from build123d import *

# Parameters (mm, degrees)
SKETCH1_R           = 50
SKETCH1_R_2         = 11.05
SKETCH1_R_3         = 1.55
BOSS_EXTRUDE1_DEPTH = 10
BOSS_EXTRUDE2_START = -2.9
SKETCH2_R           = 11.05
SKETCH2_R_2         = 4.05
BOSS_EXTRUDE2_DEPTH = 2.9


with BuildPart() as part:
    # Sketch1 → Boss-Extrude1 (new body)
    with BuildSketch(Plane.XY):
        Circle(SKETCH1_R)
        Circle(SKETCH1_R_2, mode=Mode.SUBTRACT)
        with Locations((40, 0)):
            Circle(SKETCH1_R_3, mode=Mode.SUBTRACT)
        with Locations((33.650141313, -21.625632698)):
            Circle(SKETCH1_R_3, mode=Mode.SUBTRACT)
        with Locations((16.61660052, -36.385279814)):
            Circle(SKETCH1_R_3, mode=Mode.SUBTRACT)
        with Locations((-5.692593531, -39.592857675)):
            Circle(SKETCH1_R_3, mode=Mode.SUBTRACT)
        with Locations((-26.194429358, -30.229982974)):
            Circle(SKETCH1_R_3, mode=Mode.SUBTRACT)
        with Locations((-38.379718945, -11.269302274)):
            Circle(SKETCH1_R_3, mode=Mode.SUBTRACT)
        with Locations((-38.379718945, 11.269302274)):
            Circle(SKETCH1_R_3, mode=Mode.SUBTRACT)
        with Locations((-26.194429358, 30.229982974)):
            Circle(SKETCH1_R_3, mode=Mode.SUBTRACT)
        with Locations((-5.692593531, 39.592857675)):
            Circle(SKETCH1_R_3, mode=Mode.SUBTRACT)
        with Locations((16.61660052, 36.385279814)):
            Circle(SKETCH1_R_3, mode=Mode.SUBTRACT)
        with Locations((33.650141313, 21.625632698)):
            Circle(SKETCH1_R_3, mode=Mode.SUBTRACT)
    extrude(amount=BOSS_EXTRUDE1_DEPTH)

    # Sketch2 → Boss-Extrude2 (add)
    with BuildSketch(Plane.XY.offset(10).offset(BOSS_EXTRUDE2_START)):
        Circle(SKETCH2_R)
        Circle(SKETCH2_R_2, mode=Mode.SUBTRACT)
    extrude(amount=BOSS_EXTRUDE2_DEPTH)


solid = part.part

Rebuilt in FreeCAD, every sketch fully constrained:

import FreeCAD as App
import Part
import Sketcher

V = App.Vector

doc = App.newDocument("Part")
params = doc.addObject("Spreadsheet::Sheet", "Params")
for row, (alias, value) in enumerate([
    ("sketch1_diameter", "100 mm"),
    ("sketch1_diameter2", "3.1 mm"),
    ("sketch1_diameter3", "22.1 mm"),
    ("pad1_length", "10 mm"),
    ("sketch2_diameter", "22.1 mm"),
    ("sketch2_diameter2", "8.1 mm"),
    ("pad2_length", "2.9 mm"),
], start=1):
    params.set(f"A{row}", alias)
    params.set(f"B{row}", "=" + value)
    params.setAlias(f"B{row}", alias)

body = doc.addObject("PartDesign::Body", "Body")

sketch1 = body.newObject("Sketcher::SketchObject", "Sketch")
sketch1.AttachmentSupport = (doc.getObject("XY_Plane"), [""])
sketch1.MapMode = "FlatFace"
sketch1.addGeometry(Part.Circle(V(0, 0, 0), V(0, 0, 1), 50), False)
sketch1.addGeometry(Part.Circle(V(-26.194429, -30.229983, 0), V(0, 0, 1), 1.55), False)
sketch1.addGeometry(Part.Circle(V(-5.692594, -39.592858, 0), V(0, 0, 1), 1.55), False)
sketch1.addGeometry(Part.Circle(V(-38.379719, -11.269302, 0), V(0, 0, 1), 1.55), False)
sketch1.addGeometry(Part.Circle(V(0, 0, 0), V(0, 0, 1), 11.05), False)
sketch1.addGeometry(Part.Circle(V(16.616601, -36.38528, 0), V(0, 0, 1), 1.55), False)
sketch1.addGeometry(Part.Circle(V(33.650141, -21.625633, 0), V(0, 0, 1), 1.55), False)
sketch1.addGeometry(Part.Circle(V(40, 0, 0), V(0, 0, 1), 1.55), False)
sketch1.addGeometry(Part.Circle(V(-38.379719, 11.269302, 0), V(0, 0, 1), 1.55), False)
sketch1.addGeometry(Part.Circle(V(-26.194429, 30.229983, 0), V(0, 0, 1), 1.55), False)
sketch1.addGeometry(Part.Circle(V(-5.692594, 39.592858, 0), V(0, 0, 1), 1.55), False)
sketch1.addGeometry(Part.Circle(V(16.616601, 36.38528, 0), V(0, 0, 1), 1.55), False)
sketch1.addGeometry(Part.Circle(V(33.650141, 21.625633, 0), V(0, 0, 1), 1.55), False)
sketch1.addConstraint(Sketcher.Constraint("Coincident", 0, 3, -1, 1))
sketch1.addConstraint(Sketcher.Constraint("Coincident", 4, 3, -1, 1))
sketch1.addConstraint(Sketcher.Constraint("Equal", 1, 2))
sketch1.addConstraint(Sketcher.Constraint("Equal", 2, 3))
sketch1.addConstraint(Sketcher.Constraint("Equal", 3, 5))
sketch1.addConstraint(Sketcher.Constraint("Equal", 5, 6))
sketch1.addConstraint(Sketcher.Constraint("Equal", 6, 7))
sketch1.addConstraint(Sketcher.Constraint("Equal", 7, 8))
sketch1.addConstraint(Sketcher.Constraint("Equal", 8, 9))
sketch1.addConstraint(Sketcher.Constraint("Equal", 9, 10))
sketch1.addConstraint(Sketcher.Constraint("Equal", 10, 11))
sketch1.addConstraint(Sketcher.Constraint("Equal", 11, 12))
sketch1.addConstraint(Sketcher.Constraint("Symmetric", 3, 3, 8, 3, -1))
sketch1.addConstraint(Sketcher.Constraint("Symmetric", 1, 3, 9, 3, -1))
sketch1.addConstraint(Sketcher.Constraint("Symmetric", 2, 3, 10, 3, -1))
sketch1.addConstraint(Sketcher.Constraint("Symmetric", 5, 3, 11, 3, -1))
sketch1.addConstraint(Sketcher.Constraint("Symmetric", 6, 3, 12, 3, -1))
sketch1.addConstraint(Sketcher.Constraint("PointOnObject", 7, 3, -1))
sketch1.addConstraint(Sketcher.Constraint("Diameter", 0, 100.0))
sketch1.addConstraint(Sketcher.Constraint("Diameter", 1, 3.1))
sketch1.addConstraint(Sketcher.Constraint("Diameter", 4, 22.1))
sketch1.addConstraint(Sketcher.Constraint("DistanceX", -1, 1, 7, 3, 40.0))
sketch1.addConstraint(Sketcher.Constraint("DistanceX", -1, 1, 5, 3, 16.616601))
sketch1.addConstraint(Sketcher.Constraint("DistanceX", 1, 3, -1, 1, 26.194429))
sketch1.addConstraint(Sketcher.Constraint("DistanceX", 3, 3, -1, 1, 38.379719))
sketch1.addConstraint(Sketcher.Constraint("DistanceY", 5, 3, -1, 1, 36.38528))
sketch1.addConstraint(Sketcher.Constraint("DistanceX", -1, 1, 6, 3, 33.650141))
sketch1.addConstraint(Sketcher.Constraint("DistanceY", 1, 3, 3, 3, 18.960681))
sketch1.addConstraint(Sketcher.Constraint("DistanceY", 1, 3, 6, 3, 8.60435))
sketch1.addConstraint(Sketcher.Constraint("DistanceY", 2, 3, 8, 3, 50.86216))
sketch1.addConstraint(Sketcher.Constraint("DistanceY", 1, 3, -1, 1, 30.229983))
sketch1.addConstraint(Sketcher.Constraint("DistanceX", 2, 3, -1, 1, 5.692594))
sketch1.setExpression("Constraints[18]", "Params.sketch1_diameter")
sketch1.setExpression("Constraints[19]", "Params.sketch1_diameter2")
sketch1.setExpression("Constraints[20]", "Params.sketch1_diameter3")
pad1 = body.newObject("PartDesign::Pad", "Pad")
pad1.Profile = sketch1
pad1.setExpression("Length", "Params.pad1_length")

sketch2 = body.newObject("Sketcher::SketchObject", "Sketch001")
sketch2.AttachmentSupport = (doc.getObject("XY_Plane"), [""])
sketch2.MapMode = "FlatFace"
sketch2.AttachmentOffset = App.Placement(V(0, 0, 7.1), App.Rotation())
sketch2.addGeometry(Part.Circle(V(0, 0, 0), V(0, 0, 1), 11.05), False)
sketch2.addGeometry(Part.Circle(V(0, 0, 0), V(0, 0, 1), 4.05), False)
sketch2.addConstraint(Sketcher.Constraint("Coincident", 0, 3, -1, 1))
sketch2.addConstraint(Sketcher.Constraint("Coincident", 1, 3, -1, 1))
sketch2.addConstraint(Sketcher.Constraint("Diameter", 0, 22.1))
sketch2.addConstraint(Sketcher.Constraint("Diameter", 1, 8.1))
sketch2.setExpression("Constraints[2]", "Params.sketch2_diameter")
sketch2.setExpression("Constraints[3]", "Params.sketch2_diameter2")
pad2 = body.newObject("PartDesign::Pad", "Pad001")
pad2.Profile = sketch2
pad2.setExpression("Length", "Params.pad2_length")

doc.recompute()
